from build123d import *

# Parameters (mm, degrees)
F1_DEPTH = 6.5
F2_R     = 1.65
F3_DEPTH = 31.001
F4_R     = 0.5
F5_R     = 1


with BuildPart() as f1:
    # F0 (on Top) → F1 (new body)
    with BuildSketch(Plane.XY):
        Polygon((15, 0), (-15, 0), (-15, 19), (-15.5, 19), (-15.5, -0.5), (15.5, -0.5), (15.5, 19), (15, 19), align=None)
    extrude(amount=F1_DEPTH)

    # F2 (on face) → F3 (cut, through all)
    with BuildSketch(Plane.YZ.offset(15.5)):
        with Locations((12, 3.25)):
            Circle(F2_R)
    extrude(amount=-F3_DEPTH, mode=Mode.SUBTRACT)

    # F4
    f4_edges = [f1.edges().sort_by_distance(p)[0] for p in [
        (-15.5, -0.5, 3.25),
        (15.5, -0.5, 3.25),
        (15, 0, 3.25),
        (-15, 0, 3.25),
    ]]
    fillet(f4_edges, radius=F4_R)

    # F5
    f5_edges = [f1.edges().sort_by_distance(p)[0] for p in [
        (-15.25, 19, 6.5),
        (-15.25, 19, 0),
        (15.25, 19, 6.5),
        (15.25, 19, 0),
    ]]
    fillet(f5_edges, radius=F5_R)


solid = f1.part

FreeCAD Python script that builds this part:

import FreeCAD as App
import Part
import Sketcher
from FreeCAD import Vector


def edges_at(feature, points):
    """Names of the edges that pass closest to the given points."""
    edges = feature.Shape.Edges
    near = lambda p: min(range(len(edges)), key=lambda i: edges[i].distToShape(Part.Vertex(*p))[0])
    return sorted({f"Edge{near(p) + 1}" for p in points})

doc = App.newDocument("Part")
body = doc.addObject("PartDesign::Body", "Body")

# Sketch on XY plane
sketch1 = body.newObject("Sketcher::SketchObject", "Sketch")
sketch1.AttachmentSupport = (doc.getObject("XY_Plane"), [""])
sketch1.MapMode = "FlatFace"
sketch1.addGeometry([
    Part.LineSegment(Vector(15, 0, 0), Vector(-15, 0, 0)),  # 0
    Part.LineSegment(Vector(-15, 0, 0), Vector(-15, 19, 0)),  # 1
    Part.LineSegment(Vector(-15, 19, 0), Vector(-15.5, 19, 0)),  # 2
    Part.LineSegment(Vector(-15.5, 19, 0), Vector(-15.5, -0.5, 0)),  # 3
    Part.LineSegment(Vector(-15.5, -0.5, 0), Vector(15.5, -0.5, 0)),  # 4
    Part.LineSegment(Vector(15.5, -0.5, 0), Vector(15.5, 19, 0)),  # 5
    Part.LineSegment(Vector(15.5, 19, 0), Vector(15, 19, 0)),  # 6
    Part.LineSegment(Vector(15, 19, 0), Vector(15, 0, 0)),  # 7
], False)
sketch1.addConstraint([
    Sketcher.Constraint("Coincident", 0, 2, 1, 1),
    Sketcher.Constraint("Coincident", 1, 2, 2, 1),
    Sketcher.Constraint("Coincident", 2, 2, 3, 1),
    Sketcher.Constraint("Coincident", 3, 2, 4, 1),
    Sketcher.Constraint("Coincident", 4, 2, 5, 1),
    Sketcher.Constraint("Coincident", 5, 2, 6, 1),
    Sketcher.Constraint("Coincident", 6, 2, 7, 1),
    Sketcher.Constraint("Coincident", 7, 2, 0, 1),
    Sketcher.Constraint("Horizontal", 0),
    Sketcher.Constraint("Vertical", 1),
    Sketcher.Constraint("Horizontal", 2),
    Sketcher.Constraint("Vertical", 3),
    Sketcher.Constraint("Horizontal", 4),
    Sketcher.Constraint("Vertical", 5),
    Sketcher.Constraint("Horizontal", 6),
    Sketcher.Constraint("Vertical", 7),
    Sketcher.Constraint("Symmetric", 0, 2, 7, 2, -1, 1),
    Sketcher.Constraint("Symmetric", 2, 2, 5, 2, -2),
    Sketcher.Constraint("DistanceX", 0, 2, 0, 1, 30.0),
    Sketcher.Constraint("DistanceX", 4, 1, 4, 2, 31.0),
    Sketcher.Constraint("DistanceY", 1, 1, 1, 2, 19.0),
    Sketcher.Constraint("DistanceY", 3, 2, 3, 1, 19.5),
])
pad1 = body.newObject("PartDesign::Pad", "Pad")
pad1.Profile = sketch1
pad1.Length = 6.5

# Sketch on YZ plane
sketch2 = body.newObject("Sketcher::SketchObject", "Sketch001")
sketch2.AttachmentSupport = (doc.getObject("YZ_Plane"), [""])
sketch2.MapMode = "FlatFace"
sketch2.AttachmentOffset = App.Placement(Vector(0, 0, 15.5), App.Rotation())
sketch2.addGeometry(Part.Circle(Vector(12, 3.2, 0), Vector(0, 0, 1), 1.6), False)
sketch2.addConstraint([
    Sketcher.Constraint("Diameter", 0, 3.3),
    Sketcher.Constraint("DistanceX", -1, 1, 0, 3, 12.0),
    Sketcher.Constraint("DistanceY", -1, 1, 0, 3, 3.25),
])
pocket1 = body.newObject("PartDesign::Pocket", "Pocket")
pocket1.Profile = sketch2
pocket1.Type = "ThroughAll"
doc.recompute()

fillet = body.newObject("PartDesign::Fillet", "Fillet")
fillet.Base = (pocket1, edges_at(pocket1, [
    (-15.5, -0.5, 3.25),
    (15.5, -0.5, 3.25),
    (15, 0, 3.25),
    (-15, 0, 3.25),
]))
fillet.Radius = 0.5
doc.recompute()

fillet2 = body.newObject("PartDesign::Fillet", "Fillet001")
fillet2.Base = (fillet, edges_at(fillet, [
    (-15.25, 19, 6.5),
    (-15.25, 19, 0),
    (15.25, 19, 6.5),
    (15.25, 19, 0),
]))
fillet2.Radius = 1

doc.recompute()
